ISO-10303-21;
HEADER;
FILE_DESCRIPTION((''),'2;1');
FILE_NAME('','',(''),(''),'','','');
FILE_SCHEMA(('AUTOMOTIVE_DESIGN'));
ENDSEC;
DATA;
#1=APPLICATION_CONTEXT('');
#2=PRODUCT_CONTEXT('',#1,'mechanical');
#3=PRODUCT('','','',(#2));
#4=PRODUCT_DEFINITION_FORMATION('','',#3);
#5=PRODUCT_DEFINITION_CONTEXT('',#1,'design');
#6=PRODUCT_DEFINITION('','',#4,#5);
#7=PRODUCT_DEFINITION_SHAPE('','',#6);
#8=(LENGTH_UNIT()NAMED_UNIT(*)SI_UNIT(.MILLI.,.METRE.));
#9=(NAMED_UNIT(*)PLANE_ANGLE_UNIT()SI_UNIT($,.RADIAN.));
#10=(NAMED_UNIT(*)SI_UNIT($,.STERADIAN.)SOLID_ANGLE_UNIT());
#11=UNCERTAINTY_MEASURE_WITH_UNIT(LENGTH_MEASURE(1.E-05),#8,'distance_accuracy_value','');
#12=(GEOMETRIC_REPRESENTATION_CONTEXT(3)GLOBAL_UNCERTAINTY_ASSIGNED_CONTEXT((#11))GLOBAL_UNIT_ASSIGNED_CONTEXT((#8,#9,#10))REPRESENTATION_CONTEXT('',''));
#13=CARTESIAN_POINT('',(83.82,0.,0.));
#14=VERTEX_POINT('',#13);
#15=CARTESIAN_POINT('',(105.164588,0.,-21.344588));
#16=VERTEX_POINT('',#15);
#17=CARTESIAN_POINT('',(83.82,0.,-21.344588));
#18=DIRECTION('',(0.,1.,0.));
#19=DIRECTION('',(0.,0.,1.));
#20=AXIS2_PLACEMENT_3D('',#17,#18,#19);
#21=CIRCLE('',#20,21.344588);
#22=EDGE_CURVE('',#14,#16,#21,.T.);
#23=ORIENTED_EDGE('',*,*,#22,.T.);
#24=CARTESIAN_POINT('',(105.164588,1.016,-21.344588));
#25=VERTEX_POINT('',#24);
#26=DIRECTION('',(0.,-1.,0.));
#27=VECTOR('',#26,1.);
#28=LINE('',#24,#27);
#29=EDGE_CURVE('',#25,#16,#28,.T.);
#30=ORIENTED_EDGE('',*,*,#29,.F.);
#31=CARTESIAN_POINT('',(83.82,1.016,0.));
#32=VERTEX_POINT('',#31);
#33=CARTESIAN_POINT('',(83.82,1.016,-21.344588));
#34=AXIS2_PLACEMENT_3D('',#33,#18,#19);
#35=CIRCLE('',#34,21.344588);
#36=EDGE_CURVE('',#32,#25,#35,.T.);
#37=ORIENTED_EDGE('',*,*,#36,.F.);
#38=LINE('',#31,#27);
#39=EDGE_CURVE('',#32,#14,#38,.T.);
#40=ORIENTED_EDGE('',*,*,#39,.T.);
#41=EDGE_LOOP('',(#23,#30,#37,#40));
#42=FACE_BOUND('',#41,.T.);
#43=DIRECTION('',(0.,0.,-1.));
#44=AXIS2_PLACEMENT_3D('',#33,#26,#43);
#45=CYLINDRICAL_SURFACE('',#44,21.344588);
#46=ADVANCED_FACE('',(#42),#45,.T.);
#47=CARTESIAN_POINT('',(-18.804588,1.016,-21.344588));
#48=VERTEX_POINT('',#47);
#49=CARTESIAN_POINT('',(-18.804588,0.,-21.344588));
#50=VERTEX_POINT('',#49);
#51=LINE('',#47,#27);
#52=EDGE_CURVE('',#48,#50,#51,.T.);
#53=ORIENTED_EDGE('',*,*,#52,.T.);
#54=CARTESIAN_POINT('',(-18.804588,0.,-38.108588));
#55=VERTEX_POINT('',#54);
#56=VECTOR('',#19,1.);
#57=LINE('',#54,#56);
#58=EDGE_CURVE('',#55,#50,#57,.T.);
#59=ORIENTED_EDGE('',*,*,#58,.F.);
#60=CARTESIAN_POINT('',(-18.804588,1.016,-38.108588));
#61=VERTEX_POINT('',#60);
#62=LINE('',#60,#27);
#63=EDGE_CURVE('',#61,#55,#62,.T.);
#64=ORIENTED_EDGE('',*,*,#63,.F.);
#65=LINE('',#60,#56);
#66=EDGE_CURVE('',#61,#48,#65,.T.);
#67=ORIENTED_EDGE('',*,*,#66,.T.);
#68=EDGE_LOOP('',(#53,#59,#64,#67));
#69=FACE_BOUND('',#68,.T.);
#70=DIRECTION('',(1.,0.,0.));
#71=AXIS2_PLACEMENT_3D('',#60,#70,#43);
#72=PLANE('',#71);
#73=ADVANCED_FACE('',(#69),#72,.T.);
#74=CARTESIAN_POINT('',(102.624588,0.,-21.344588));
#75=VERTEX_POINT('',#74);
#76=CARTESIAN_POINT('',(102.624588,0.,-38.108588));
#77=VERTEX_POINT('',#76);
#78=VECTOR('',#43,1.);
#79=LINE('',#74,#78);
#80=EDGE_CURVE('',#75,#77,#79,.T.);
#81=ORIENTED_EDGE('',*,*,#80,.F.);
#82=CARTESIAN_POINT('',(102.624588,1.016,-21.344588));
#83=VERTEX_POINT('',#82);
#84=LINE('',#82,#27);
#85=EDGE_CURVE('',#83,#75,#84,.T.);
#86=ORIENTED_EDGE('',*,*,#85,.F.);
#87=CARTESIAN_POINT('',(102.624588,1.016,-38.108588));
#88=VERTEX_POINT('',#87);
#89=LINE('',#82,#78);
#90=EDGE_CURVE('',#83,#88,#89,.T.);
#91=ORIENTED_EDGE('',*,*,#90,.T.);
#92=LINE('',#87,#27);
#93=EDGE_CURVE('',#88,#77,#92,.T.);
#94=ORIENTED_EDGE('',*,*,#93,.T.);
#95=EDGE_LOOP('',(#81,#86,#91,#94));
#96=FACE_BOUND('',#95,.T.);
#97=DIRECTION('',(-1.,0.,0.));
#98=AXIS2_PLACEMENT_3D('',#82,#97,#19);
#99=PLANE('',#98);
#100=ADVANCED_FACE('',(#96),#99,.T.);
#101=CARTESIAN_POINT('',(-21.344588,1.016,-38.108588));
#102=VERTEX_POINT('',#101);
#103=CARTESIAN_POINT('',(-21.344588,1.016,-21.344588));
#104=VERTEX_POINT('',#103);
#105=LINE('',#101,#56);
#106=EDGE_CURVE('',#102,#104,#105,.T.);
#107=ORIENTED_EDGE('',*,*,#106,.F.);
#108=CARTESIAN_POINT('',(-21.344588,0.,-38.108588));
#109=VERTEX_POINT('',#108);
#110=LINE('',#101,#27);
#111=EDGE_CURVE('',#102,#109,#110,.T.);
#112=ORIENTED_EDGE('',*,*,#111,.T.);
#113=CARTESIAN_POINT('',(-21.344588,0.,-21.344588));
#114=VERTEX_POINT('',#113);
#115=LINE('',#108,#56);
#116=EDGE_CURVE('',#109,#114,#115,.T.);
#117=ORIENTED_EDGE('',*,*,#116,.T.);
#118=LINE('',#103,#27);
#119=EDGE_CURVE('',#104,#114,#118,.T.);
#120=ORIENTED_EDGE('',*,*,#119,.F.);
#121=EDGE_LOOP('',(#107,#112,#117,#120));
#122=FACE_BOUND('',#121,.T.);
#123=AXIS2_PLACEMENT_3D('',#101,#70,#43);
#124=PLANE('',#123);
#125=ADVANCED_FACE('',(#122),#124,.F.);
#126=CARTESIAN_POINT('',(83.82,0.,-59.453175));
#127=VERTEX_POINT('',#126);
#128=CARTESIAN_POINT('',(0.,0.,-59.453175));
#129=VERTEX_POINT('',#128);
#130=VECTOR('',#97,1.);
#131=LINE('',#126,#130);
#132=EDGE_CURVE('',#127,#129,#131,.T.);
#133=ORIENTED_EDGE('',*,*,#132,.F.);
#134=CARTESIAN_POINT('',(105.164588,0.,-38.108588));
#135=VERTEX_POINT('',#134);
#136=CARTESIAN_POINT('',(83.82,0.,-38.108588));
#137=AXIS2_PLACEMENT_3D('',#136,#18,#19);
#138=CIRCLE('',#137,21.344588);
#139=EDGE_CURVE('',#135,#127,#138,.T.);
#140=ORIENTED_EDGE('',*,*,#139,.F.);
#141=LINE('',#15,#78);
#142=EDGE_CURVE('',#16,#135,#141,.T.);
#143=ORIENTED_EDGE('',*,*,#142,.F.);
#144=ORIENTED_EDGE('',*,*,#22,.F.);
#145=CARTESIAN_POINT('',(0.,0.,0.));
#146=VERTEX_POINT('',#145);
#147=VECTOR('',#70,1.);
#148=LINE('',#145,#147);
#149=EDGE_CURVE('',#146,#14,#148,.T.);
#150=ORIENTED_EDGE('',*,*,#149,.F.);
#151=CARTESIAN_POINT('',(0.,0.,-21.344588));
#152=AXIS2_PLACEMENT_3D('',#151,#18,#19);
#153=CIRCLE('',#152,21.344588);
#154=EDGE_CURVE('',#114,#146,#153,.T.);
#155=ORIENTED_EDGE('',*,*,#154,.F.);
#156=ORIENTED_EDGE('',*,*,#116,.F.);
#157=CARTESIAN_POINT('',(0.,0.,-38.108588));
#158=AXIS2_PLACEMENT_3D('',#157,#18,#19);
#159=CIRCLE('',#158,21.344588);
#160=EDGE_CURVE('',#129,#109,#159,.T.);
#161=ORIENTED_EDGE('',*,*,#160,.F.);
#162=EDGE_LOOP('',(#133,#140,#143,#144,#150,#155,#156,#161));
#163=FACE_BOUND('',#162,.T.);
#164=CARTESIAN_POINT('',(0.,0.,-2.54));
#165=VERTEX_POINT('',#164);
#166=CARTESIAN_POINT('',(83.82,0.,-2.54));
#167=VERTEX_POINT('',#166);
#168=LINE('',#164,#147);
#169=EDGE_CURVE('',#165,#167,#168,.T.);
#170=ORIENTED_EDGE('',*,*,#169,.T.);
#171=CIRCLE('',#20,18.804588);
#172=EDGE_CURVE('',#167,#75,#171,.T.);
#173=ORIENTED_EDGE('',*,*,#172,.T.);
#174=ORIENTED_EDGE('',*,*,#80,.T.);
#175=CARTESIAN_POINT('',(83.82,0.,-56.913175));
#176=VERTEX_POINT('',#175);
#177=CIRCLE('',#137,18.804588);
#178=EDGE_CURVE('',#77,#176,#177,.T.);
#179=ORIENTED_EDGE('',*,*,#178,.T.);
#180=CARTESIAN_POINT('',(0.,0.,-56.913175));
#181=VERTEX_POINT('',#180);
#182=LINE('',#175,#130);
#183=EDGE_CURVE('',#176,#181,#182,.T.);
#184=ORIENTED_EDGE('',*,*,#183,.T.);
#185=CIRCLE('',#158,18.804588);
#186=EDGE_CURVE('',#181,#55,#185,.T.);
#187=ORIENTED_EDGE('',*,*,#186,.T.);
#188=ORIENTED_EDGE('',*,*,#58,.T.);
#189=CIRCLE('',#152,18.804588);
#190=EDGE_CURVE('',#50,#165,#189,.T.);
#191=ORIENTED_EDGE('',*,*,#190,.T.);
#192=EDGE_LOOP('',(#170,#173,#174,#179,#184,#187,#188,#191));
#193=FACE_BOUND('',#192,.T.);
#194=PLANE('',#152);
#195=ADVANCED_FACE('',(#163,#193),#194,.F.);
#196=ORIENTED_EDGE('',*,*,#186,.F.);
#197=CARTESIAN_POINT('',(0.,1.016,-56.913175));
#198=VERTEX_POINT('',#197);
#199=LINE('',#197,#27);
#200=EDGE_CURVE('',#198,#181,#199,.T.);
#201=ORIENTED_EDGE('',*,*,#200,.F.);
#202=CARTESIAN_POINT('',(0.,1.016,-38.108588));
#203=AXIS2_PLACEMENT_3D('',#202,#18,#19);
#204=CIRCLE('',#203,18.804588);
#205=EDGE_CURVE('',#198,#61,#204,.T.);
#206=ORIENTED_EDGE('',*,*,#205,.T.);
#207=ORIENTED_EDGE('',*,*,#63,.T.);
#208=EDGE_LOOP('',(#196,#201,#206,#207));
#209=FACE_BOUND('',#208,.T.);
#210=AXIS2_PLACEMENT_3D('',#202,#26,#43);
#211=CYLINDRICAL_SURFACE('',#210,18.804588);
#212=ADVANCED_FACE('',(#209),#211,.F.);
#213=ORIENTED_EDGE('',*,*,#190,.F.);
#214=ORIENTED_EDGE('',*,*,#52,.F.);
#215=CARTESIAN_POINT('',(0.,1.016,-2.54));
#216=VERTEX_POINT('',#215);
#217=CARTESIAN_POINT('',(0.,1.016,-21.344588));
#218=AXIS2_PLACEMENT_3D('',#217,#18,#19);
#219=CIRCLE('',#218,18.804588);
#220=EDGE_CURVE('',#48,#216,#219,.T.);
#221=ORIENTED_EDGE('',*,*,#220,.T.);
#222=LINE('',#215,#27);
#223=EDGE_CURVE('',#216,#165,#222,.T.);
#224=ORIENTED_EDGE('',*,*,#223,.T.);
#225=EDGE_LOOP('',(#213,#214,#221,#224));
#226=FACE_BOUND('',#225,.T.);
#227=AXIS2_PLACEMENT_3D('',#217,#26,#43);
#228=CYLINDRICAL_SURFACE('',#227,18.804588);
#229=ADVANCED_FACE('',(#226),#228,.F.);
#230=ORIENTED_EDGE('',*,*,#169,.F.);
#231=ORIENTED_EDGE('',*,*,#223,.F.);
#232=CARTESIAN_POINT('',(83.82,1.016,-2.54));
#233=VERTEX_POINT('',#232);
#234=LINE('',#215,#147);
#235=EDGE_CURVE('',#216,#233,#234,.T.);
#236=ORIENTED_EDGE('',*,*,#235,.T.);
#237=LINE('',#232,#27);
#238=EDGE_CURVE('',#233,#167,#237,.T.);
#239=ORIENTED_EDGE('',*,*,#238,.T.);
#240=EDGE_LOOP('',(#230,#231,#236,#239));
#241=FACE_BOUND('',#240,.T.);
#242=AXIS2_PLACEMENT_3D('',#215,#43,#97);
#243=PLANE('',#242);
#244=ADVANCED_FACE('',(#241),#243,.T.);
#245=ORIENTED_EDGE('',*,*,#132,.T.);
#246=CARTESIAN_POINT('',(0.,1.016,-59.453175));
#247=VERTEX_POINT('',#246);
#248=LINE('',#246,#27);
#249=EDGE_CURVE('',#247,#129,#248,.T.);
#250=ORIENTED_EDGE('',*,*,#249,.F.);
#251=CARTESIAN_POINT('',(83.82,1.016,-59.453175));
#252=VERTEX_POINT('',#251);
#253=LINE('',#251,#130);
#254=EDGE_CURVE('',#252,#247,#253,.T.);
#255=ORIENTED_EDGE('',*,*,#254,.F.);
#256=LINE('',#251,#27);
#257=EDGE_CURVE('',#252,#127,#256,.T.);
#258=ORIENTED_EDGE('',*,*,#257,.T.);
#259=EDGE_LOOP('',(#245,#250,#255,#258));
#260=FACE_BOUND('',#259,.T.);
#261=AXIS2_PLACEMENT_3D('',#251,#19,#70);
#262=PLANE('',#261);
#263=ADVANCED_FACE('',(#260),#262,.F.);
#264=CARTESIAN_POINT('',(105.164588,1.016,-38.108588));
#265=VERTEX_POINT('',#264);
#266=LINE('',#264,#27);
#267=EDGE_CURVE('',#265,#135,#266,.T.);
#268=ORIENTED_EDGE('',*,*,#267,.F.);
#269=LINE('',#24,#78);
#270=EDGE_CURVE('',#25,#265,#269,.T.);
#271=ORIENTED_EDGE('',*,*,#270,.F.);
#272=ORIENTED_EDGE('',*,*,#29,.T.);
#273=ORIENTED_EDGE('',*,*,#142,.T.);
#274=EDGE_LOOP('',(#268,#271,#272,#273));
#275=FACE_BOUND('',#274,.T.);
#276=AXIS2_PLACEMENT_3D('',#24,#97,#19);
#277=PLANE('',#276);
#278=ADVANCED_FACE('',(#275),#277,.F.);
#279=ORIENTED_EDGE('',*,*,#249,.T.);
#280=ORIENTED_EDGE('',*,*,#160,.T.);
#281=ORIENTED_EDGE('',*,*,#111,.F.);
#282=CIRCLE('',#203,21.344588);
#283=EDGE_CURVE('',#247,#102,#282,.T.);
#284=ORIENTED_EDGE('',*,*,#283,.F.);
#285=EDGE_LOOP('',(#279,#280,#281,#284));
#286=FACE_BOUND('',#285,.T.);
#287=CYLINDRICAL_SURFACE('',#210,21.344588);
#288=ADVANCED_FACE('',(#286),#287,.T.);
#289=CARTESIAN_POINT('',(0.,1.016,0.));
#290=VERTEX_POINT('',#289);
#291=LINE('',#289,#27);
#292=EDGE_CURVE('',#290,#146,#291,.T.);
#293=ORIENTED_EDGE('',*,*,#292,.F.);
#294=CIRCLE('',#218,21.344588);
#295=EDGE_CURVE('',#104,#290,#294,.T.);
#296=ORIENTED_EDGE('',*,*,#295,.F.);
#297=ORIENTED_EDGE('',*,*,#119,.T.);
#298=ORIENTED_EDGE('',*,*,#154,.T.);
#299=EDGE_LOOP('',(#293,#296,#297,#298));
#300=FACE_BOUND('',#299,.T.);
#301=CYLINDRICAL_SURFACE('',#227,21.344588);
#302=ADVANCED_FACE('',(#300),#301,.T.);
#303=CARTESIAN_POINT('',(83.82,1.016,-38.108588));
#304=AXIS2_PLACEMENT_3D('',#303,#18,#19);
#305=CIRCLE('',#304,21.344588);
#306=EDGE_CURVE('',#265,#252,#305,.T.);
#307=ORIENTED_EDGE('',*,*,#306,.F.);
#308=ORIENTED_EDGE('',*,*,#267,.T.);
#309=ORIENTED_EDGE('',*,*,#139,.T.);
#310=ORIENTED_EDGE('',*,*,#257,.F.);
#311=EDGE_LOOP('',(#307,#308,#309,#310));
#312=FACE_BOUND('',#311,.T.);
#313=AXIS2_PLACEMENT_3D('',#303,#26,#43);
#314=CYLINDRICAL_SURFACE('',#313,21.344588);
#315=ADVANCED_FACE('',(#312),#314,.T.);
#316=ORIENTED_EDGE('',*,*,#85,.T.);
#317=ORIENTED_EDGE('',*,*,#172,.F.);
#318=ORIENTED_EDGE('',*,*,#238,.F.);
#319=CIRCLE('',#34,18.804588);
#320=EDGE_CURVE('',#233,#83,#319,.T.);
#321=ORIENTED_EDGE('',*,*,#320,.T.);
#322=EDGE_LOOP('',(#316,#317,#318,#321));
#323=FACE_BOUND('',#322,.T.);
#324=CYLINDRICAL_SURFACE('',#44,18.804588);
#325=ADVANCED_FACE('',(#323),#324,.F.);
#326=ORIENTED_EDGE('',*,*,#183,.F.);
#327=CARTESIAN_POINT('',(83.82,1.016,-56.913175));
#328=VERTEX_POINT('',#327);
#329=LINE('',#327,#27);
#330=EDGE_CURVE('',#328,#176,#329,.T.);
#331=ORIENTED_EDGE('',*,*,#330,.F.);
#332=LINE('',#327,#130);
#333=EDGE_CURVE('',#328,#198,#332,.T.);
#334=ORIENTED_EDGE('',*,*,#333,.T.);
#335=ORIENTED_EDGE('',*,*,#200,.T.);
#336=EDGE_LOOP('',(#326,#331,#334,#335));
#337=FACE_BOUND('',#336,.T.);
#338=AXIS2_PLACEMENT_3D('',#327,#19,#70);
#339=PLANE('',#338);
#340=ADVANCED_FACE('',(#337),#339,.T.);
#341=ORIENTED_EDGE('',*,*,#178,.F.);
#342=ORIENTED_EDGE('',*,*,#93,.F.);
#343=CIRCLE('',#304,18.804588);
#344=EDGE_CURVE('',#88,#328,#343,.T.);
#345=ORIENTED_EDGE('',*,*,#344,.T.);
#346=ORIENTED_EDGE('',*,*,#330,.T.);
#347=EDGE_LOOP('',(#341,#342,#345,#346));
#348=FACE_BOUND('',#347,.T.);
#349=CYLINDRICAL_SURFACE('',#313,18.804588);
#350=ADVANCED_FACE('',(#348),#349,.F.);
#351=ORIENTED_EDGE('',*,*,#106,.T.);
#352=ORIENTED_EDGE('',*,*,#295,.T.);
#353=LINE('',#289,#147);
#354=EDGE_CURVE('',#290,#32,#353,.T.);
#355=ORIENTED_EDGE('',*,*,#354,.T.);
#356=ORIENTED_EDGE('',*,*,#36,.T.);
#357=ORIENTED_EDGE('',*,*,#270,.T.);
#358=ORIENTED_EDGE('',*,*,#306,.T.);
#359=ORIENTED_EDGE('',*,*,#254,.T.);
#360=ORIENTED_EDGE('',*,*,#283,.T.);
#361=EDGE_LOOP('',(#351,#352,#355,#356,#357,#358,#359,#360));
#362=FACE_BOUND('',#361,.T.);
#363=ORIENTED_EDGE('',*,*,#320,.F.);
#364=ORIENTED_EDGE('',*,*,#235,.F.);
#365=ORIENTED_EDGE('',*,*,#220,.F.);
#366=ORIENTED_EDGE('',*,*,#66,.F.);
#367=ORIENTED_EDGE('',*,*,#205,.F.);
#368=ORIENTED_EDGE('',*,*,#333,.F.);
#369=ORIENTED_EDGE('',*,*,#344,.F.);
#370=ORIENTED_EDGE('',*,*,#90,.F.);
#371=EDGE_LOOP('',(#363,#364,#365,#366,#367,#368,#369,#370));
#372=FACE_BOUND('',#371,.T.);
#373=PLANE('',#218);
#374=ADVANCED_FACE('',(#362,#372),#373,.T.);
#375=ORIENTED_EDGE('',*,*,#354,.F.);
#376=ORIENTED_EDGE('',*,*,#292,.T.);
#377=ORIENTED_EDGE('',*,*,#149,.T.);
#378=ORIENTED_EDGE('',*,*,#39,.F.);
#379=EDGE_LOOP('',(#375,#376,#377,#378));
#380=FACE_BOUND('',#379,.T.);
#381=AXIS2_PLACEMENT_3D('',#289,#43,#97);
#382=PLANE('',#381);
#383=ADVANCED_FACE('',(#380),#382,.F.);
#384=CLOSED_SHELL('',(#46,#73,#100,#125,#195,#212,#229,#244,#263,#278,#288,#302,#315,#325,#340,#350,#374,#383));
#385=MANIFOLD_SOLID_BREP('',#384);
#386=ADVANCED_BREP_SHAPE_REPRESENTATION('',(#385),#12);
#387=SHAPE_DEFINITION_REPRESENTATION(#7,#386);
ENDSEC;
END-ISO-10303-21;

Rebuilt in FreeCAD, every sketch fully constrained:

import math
import FreeCAD as App
import Part
import Sketcher
from FreeCAD import Vector
Q = App.Units.Quantity

doc = App.newDocument("Part")
params = doc.addObject("Spreadsheet::Sheet", "Params")
for row, (alias, value) in enumerate([
    ("sketch1_width", "3.3 in"),
    ("sketch1_height", "0.66 in"),
    ("pad1_length", "0.04 in"),
], start=1):
    params.set(f"A{row}", alias)
    params.set(f"B{row}", "=" + value)
    params.setAlias(f"B{row}", alias)

body = doc.addObject("PartDesign::Body", "Body")

sketch1 = body.newObject("Sketcher::SketchObject", "Sketch")
sketch1.AttachmentSupport = (doc.getObject("XZ_Plane"), [""])
sketch1.MapMode = "FlatFace"
sketch1.addGeometry([
    Part.LineSegment(Vector(0, 0, 0), Vector(84, 0, 0)),
    Part.ArcOfCircle(Part.Circle(Vector(84, -21, 0), Vector(0, 0, 1), 21), math.radians(0), math.radians(90)),
    Part.LineSegment(Vector(105, -21, 0), Vector(105, -38, 0)),
    Part.ArcOfCircle(Part.Circle(Vector(84, -38, 0), Vector(0, 0, 1), 21), math.radians(-90), math.radians(0)),
    Part.LineSegment(Vector(84, -59, 0), Vector(0, -59, 0)),
    Part.ArcOfCircle(Part.Circle(Vector(0, -38, 0), Vector(0, 0, 1), 21), math.radians(180), math.radians(270)),
    Part.LineSegment(Vector(-21, -38, 0), Vector(-21, -21, 0)),
    Part.ArcOfCircle(Part.Circle(Vector(0, -21, 0), Vector(0, 0, 1), 21), math.radians(90), math.radians(180)),
    Part.LineSegment(Vector(84, -3, 0), Vector(0, -3, 0)),
    Part.ArcOfCircle(Part.Circle(Vector(0, -21, 0), Vector(0, 0, 1), 19), math.radians(90), math.radians(180)),
    Part.LineSegment(Vector(-19, -21, 0), Vector(-19, -38, 0)),
    Part.ArcOfCircle(Part.Circle(Vector(0, -38, 0), Vector(0, 0, 1), 19), math.radians(180), math.radians(270)),
    Part.LineSegment(Vector(0, -57, 0), Vector(84, -57, 0)),
    Part.ArcOfCircle(Part.Circle(Vector(84, -38, 0), Vector(0, 0, 1), 19), math.radians(-90), math.radians(0)),
    Part.LineSegment(Vector(103, -38, 0), Vector(103, -21, 0)),
    Part.ArcOfCircle(Part.Circle(Vector(84, -21, 0), Vector(0, 0, 1), 19), math.radians(0), math.radians(90)),
], False)
sketch1.addConstraint([
    Sketcher.Constraint("Tangent", 0, 2, 1, 2),
    Sketcher.Constraint("Tangent", 1, 1, 2, 1),
    Sketcher.Constraint("Tangent", 2, 2, 3, 2),
    Sketcher.Constraint("Tangent", 3, 1, 4, 1),
    Sketcher.Constraint("Tangent", 4, 2, 5, 2),
    Sketcher.Constraint("Tangent", 5, 1, 6, 1),
    Sketcher.Constraint("Tangent", 6, 2, 7, 2),
    Sketcher.Constraint("Tangent", 7, 1, 0, 1),
    Sketcher.Constraint("Tangent", 8, 2, 9, 1),
    Sketcher.Constraint("Tangent", 9, 2, 10, 1),
    Sketcher.Constraint("Tangent", 10, 2, 11, 1),
    Sketcher.Constraint("Tangent", 11, 2, 12, 1),
    Sketcher.Constraint("Tangent", 12, 2, 13, 1),
    Sketcher.Constraint("Tangent", 13, 2, 14, 1),
    Sketcher.Constraint("Tangent", 14, 2, 15, 1),
    Sketcher.Constraint("Tangent", 15, 2, 8, 1),
    Sketcher.Constraint("Horizontal", 0),
    Sketcher.Constraint("Vertical", 2),
    Sketcher.Constraint("Horizontal", 4),
    Sketcher.Constraint("Vertical", 6),
    Sketcher.Constraint("Horizontal", 8),
    Sketcher.Constraint("Vertical", 10),
    Sketcher.Constraint("Horizontal", 12),
    Sketcher.Constraint("Vertical", 14),
    Sketcher.Constraint("Coincident", 7, 1, -1, 1),
    Sketcher.Constraint("Coincident", 9, 3, 7, 3),
    Sketcher.Constraint("Coincident", 11, 3, 5, 3),
    Sketcher.Constraint("Coincident", 13, 3, 3, 3),
    Sketcher.Constraint("Equal", 1, 3),
    Sketcher.Constraint("Equal", 3, 5),
    Sketcher.Constraint("Equal", 5, 7),
    Sketcher.Constraint("Equal", 13, 15),
    Sketcher.Constraint("DistanceX", 0, 1, 0, 2, Q("3.3 in")),
    Sketcher.Constraint("DistanceY", 2, 2, 2, 1, Q("0.66 in")),
    Sketcher.Constraint("DistanceY", 8, 2, -1, 1, Q("0.1 in")),
    Sketcher.Constraint("Radius", 1, 21.344588),
])
sketch1.setExpression("Constraints[32]", "Params.sketch1_width")
sketch1.setExpression("Constraints[33]", "Params.sketch1_height")
pad1 = body.newObject("PartDesign::Pad", "Pad")
pad1.Profile = sketch1
pad1.setExpression("Length", "Params.pad1_length")
pad1.Reversed = True

doc.recompute()
